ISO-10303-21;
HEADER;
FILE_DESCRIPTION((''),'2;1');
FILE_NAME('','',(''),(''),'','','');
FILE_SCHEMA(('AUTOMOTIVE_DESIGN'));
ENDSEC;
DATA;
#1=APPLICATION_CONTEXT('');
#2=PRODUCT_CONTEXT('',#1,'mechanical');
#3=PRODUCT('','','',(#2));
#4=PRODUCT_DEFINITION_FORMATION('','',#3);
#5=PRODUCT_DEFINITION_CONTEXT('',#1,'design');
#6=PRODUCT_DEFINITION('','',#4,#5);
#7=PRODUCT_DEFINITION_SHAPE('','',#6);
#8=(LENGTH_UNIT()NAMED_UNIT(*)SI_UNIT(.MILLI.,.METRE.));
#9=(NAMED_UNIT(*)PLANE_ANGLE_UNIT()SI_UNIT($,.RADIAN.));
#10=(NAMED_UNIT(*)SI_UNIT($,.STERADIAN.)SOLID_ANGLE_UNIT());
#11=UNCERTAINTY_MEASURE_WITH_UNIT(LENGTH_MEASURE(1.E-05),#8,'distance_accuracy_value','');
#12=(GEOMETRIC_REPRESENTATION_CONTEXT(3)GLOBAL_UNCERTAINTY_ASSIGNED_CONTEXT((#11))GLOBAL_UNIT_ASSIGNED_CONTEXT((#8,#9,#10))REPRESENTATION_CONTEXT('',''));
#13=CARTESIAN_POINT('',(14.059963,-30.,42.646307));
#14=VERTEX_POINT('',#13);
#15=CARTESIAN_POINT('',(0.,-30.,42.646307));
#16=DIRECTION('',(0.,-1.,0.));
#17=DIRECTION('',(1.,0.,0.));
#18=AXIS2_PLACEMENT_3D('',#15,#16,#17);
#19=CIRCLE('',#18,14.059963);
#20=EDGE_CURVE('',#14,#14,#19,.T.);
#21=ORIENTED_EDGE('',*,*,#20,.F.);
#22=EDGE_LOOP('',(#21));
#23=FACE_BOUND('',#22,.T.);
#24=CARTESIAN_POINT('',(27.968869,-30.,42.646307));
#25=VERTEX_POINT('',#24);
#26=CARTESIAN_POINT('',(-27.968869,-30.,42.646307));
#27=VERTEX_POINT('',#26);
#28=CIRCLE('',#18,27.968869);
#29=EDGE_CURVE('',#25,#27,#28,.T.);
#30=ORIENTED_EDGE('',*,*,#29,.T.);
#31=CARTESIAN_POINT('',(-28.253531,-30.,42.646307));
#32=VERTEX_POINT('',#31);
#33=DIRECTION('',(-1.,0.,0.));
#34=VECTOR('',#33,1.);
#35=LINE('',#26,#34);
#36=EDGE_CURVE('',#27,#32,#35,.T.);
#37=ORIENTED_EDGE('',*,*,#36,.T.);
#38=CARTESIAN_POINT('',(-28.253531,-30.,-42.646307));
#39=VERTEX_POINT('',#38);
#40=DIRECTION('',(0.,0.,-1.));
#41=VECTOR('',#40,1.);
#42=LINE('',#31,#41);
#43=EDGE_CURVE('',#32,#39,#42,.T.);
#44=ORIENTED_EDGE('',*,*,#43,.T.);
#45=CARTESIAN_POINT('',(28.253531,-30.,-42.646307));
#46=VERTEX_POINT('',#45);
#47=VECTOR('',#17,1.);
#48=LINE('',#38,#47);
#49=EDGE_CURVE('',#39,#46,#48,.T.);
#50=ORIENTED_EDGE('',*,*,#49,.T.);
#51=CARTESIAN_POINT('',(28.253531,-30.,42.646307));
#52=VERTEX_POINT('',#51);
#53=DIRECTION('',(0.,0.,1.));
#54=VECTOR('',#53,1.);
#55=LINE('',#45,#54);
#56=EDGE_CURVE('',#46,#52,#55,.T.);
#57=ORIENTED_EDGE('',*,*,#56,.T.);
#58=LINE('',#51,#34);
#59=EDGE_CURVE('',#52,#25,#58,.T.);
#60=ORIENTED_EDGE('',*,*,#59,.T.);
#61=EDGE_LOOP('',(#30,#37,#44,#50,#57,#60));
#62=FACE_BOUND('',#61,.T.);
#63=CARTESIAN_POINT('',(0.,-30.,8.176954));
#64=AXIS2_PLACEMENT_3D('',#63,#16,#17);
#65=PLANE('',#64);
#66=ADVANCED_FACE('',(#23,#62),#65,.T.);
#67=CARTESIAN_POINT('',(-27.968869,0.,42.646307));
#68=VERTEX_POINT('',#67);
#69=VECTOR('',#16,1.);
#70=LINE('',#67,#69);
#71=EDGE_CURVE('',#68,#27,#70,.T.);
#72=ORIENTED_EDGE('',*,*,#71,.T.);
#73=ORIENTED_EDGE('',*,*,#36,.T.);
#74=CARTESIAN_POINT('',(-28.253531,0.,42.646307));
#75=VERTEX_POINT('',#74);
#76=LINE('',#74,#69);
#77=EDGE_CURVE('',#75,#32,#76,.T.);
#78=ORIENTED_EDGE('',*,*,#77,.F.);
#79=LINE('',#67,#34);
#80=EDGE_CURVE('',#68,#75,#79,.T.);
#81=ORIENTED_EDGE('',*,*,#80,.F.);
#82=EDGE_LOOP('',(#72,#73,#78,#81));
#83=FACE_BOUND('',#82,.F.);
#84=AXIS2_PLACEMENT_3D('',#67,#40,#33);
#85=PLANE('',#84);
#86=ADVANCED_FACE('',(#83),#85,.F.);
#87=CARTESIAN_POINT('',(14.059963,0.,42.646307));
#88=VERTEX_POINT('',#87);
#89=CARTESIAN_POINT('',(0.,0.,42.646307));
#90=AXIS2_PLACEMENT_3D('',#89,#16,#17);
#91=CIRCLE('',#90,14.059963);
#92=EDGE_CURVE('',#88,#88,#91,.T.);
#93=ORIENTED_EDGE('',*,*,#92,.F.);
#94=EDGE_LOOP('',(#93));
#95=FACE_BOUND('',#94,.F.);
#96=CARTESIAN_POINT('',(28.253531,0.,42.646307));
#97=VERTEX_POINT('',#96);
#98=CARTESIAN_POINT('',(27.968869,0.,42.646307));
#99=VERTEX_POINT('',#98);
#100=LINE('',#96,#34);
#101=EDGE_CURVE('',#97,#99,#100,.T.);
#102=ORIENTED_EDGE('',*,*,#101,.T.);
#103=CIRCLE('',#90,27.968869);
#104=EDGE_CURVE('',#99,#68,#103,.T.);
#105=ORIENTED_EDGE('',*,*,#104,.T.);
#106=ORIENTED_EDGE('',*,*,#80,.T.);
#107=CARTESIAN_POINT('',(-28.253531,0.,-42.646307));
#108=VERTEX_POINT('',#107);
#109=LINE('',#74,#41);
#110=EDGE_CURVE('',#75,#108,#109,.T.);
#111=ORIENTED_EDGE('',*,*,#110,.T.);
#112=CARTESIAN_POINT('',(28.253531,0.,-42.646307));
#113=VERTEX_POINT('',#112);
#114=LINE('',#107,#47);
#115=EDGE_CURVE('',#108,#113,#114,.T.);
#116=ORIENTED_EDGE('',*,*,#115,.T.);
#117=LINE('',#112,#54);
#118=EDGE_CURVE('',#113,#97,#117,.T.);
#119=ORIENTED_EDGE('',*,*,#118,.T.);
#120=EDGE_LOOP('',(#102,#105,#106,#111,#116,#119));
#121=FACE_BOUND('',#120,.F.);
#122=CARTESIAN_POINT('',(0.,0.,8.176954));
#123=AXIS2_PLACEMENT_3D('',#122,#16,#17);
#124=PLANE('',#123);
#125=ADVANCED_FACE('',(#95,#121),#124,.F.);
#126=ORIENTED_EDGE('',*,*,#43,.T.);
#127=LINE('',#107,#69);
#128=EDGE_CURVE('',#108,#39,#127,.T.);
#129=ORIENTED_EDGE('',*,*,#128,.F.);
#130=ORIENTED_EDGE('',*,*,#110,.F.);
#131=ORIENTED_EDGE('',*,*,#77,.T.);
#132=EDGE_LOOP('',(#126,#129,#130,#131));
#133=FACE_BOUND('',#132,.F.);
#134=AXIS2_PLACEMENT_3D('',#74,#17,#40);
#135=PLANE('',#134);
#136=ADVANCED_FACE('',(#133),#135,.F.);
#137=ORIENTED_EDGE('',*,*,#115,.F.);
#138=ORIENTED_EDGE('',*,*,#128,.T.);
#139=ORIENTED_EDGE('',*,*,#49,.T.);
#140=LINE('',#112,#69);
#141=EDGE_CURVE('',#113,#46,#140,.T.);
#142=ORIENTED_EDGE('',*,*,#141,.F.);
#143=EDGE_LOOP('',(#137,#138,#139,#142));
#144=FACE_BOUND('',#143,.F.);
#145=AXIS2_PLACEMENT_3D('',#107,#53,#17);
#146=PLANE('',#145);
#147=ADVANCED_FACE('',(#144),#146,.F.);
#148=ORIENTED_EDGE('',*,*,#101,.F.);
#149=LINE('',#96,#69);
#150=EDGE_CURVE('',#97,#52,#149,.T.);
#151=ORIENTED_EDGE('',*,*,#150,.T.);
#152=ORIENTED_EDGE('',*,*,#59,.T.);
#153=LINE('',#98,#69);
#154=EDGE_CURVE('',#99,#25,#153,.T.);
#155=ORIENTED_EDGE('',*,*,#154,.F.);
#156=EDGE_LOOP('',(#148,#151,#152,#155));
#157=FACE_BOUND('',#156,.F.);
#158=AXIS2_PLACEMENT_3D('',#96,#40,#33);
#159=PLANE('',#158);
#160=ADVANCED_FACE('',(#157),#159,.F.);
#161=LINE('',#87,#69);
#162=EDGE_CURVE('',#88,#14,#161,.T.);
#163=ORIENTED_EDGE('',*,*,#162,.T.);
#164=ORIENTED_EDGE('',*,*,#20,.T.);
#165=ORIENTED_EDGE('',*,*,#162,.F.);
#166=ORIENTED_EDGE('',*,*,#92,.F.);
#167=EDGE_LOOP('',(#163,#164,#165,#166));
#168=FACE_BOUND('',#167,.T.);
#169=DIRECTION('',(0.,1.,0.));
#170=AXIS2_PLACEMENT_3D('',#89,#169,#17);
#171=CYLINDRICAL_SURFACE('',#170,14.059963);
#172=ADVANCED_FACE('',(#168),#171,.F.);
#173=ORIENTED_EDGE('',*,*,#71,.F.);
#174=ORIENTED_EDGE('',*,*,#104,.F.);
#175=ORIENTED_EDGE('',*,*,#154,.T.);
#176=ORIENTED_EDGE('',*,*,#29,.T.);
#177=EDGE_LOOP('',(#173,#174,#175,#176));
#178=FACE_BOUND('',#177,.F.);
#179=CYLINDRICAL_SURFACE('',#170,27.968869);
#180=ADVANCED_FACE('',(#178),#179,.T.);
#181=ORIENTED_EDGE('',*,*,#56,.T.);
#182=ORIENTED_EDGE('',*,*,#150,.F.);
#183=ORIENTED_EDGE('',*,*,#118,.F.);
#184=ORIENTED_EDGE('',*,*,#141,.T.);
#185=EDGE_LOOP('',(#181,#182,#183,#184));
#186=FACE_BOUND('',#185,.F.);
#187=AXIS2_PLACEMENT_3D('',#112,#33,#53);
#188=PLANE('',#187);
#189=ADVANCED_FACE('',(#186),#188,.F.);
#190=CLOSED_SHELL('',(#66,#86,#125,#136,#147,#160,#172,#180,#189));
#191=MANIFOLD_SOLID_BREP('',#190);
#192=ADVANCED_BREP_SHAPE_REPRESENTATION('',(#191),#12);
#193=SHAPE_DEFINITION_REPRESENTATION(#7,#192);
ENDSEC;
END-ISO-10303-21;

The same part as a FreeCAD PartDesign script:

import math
import FreeCAD as App
import Part
import Sketcher

V = App.Vector

doc = App.newDocument("Part")
body = doc.addObject("PartDesign::Body", "Body")

# Sketch on XZ plane
sketch1 = doc.addObject("Sketcher::SketchObject", "Sketch")
body.addObject(sketch1)
sketch1.AttachmentSupport = (doc.XZ_Plane, [""])
sketch1.MapMode = "FlatFace"
sketch1.addGeometry([
    Part.LineSegment(V(28.25, -42.65, 0), V(28.25, 42.65, 0)),  # 0
    Part.LineSegment(V(28.25, 42.65, 0), V(27.97, 42.65, 0)),  # 1
    Part.ArcOfCircle(Part.Circle(V(0, 42.65, 0), V(0, 0, 1), 27.97), math.radians(0), math.radians(180)),  # 2
    Part.LineSegment(V(-27.97, 42.65, 0), V(-28.25, 42.65, 0)),  # 3
    Part.LineSegment(V(-28.25, 42.65, 0), V(-28.25, -42.65, 0)),  # 4
    Part.LineSegment(V(-28.25, -42.65, 0), V(28.25, -42.65, 0)),  # 5
    Part.Circle(V(0, 42.65, 0), V(0, 0, 1), 14.06),  # 6
], False)
sketch1.addConstraint([
    Sketcher.Constraint("Coincident", 0, 2, 1, 1),
    Sketcher.Constraint("Coincident", 1, 2, 2, 1),
    Sketcher.Constraint("Coincident", 2, 2, 3, 1),
    Sketcher.Constraint("Coincident", 3, 2, 4, 1),
    Sketcher.Constraint("Coincident", 4, 2, 5, 1),
    Sketcher.Constraint("Coincident", 5, 2, 0, 1),
    Sketcher.Constraint("Vertical", 0),
    Sketcher.Constraint("Horizontal", 1),
    Sketcher.Constraint("Horizontal", 3),
    Sketcher.Constraint("Vertical", 4),
    Sketcher.Constraint("Horizontal", 5),
    Sketcher.Constraint("Coincident", 6, 3, 2, 3),
    Sketcher.Constraint("Symmetric", 0, 2, 4, 2, -1, 1),
    Sketcher.Constraint("Symmetric", 1, 2, 2, 2, -2),
    Sketcher.Constraint("Horizontal", 6, 3, 0, 2),
    Sketcher.Constraint("Radius", 2, 27.968869),
    Sketcher.Constraint("Diameter", 6, 28.119926),
    Sketcher.Constraint("DistanceX", 1, 2, 1, 1, 0.284662),
    Sketcher.Constraint("DistanceY", 0, 1, 0, 2, 85.292614),
])
pad1 = doc.addObject("PartDesign::Pad", "Pad")
body.addObject(pad1)
pad1.Profile = sketch1
pad1.Length = 30

doc.recompute()
